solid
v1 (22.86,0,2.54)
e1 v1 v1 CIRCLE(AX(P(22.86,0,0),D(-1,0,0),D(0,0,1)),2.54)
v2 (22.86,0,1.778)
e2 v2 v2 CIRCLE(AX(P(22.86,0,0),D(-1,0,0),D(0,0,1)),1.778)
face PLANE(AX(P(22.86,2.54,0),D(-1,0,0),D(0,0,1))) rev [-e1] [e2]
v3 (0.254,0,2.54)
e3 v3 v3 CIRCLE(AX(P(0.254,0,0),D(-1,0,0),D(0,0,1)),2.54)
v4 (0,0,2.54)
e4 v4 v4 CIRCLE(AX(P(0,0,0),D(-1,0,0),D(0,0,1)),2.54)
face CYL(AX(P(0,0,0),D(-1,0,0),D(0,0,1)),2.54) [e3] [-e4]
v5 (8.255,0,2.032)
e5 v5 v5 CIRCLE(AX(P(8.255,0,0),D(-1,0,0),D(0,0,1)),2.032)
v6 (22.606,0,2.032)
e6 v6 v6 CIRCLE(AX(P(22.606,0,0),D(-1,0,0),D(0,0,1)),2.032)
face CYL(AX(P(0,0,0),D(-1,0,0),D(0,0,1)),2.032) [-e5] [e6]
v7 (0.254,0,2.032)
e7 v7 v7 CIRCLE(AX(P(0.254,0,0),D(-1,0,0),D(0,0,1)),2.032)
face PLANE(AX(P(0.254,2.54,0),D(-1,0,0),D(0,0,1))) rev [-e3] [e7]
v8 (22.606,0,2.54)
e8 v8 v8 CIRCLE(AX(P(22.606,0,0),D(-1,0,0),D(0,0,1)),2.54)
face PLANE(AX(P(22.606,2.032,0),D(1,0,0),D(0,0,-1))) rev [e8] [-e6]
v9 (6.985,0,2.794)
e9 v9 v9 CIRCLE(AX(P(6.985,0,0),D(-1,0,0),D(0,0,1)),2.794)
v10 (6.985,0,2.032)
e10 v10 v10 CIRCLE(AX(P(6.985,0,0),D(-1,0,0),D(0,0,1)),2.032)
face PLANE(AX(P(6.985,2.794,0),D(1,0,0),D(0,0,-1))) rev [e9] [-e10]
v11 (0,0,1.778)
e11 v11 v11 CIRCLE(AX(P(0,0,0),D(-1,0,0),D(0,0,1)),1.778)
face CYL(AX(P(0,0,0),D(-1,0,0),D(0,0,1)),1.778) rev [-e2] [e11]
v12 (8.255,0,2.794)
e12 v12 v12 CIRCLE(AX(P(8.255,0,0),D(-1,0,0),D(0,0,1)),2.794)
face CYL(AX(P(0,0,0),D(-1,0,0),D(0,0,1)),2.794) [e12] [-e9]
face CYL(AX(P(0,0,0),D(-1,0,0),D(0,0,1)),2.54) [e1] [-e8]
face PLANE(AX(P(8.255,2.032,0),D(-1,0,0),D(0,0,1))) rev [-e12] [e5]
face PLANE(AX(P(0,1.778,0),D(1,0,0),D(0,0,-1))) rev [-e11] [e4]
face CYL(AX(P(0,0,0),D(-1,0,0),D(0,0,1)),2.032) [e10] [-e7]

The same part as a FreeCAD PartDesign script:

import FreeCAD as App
import Part
import Sketcher

V = App.Vector
Q = App.Units.Quantity

doc = App.newDocument("Part")
body = doc.addObject("PartDesign::Body", "Body")

# Sketch on XY plane
sketch1 = body.newObject("Sketcher::SketchObject", "Sketch")
sketch1.AttachmentSupport = (doc.getObject("XY_Plane"), [""])
sketch1.MapMode = "FlatFace"
sketch1.addGeometry([
    Part.LineSegment(V(0, 2.54, 0), V(0, 1.78, 0)),  # 0
    Part.LineSegment(V(0, 1.78, 0), V(22.86, 1.78, 0)),  # 1
    Part.LineSegment(V(22.86, 1.78, 0), V(22.86, 2.54, 0)),  # 2
    Part.LineSegment(V(22.86, 2.54, 0), V(22.61, 2.54, 0)),  # 3
    Part.LineSegment(V(22.61, 2.54, 0), V(22.61, 2.03, 0)),  # 4
    Part.LineSegment(V(22.61, 2.03, 0), V(8.26, 2.03, 0)),  # 5
    Part.LineSegment(V(8.26, 2.03, 0), V(8.26, 2.79, 0)),  # 6
    Part.LineSegment(V(8.26, 2.79, 0), V(6.99, 2.79, 0)),  # 7
    Part.LineSegment(V(6.99, 2.79, 0), V(6.99, 2.03, 0)),  # 8
    Part.LineSegment(V(6.99, 2.03, 0), V(0.25, 2.03, 0)),  # 9
    Part.LineSegment(V(0.25, 2.03, 0), V(0.25, 2.54, 0)),  # 10
    Part.LineSegment(V(0.25, 2.54, 0), V(0, 2.54, 0)),  # 11
], False)
sketch1.addConstraint([
    Sketcher.Constraint("Coincident", 0, 2, 1, 1),
    Sketcher.Constraint("Coincident", 1, 2, 2, 1),
    Sketcher.Constraint("Coincident", 2, 2, 3, 1),
    Sketcher.Constraint("Coincident", 3, 2, 4, 1),
    Sketcher.Constraint("Coincident", 4, 2, 5, 1),
    Sketcher.Constraint("Coincident", 5, 2, 6, 1),
    Sketcher.Constraint("Coincident", 6, 2, 7, 1),
    Sketcher.Constraint("Coincident", 7, 2, 8, 1),
    Sketcher.Constraint("Coincident", 8, 2, 9, 1),
    Sketcher.Constraint("Coincident", 9, 2, 10, 1),
    Sketcher.Constraint("Coincident", 10, 2, 11, 1),
    Sketcher.Constraint("Coincident", 11, 2, 0, 1),
    Sketcher.Constraint("Vertical", 0),
    Sketcher.Constraint("Horizontal", 1),
    Sketcher.Constraint("Vertical", 2),
    Sketcher.Constraint("Horizontal", 3),
    Sketcher.Constraint("Vertical", 4),
    Sketcher.Constraint("Horizontal", 5),
    Sketcher.Constraint("Vertical", 6),
    Sketcher.Constraint("Horizontal", 7),
    Sketcher.Constraint("Vertical", 8),
    Sketcher.Constraint("Horizontal", 9),
    Sketcher.Constraint("Vertical", 10),
    Sketcher.Constraint("Horizontal", 11),
    Sketcher.Constraint("PointOnObject", 0, 2, -2),
    Sketcher.Constraint("Horizontal", 5, 2, 8, 2),
    Sketcher.Constraint("Horizontal", 3, 2, 10, 2),
    Sketcher.Constraint("Equal", 3, 11),
    Sketcher.Constraint("Equal", 2, 6),
    Sketcher.Constraint("DistanceX", 1, 1, 1, 2, Q("0.9 in")),
    Sketcher.Constraint("DistanceX", 3, 2, 3, 1, Q("0.01 in")),
    Sketcher.Constraint("DistanceX", 7, 2, 7, 1, Q("0.05 in")),
    Sketcher.Constraint("DistanceY", 0, 2, 0, 1, Q("0.03 in")),
    Sketcher.Constraint("DistanceY", 4, 2, 4, 1, Q("0.02 in")),
    Sketcher.Constraint("DistanceY", -1, 1, 2, 2, Q("0.1 in")),
    Sketcher.Constraint("DistanceX", 5, 2, 5, 1, Q("0.565 in")),
])
revolution = body.newObject("PartDesign::Revolution", "Revolution")
revolution.Profile = sketch1
revolution.ReferenceAxis = (sketch1, ["H_Axis"])
revolution.Angle = 360

doc.recompute()
